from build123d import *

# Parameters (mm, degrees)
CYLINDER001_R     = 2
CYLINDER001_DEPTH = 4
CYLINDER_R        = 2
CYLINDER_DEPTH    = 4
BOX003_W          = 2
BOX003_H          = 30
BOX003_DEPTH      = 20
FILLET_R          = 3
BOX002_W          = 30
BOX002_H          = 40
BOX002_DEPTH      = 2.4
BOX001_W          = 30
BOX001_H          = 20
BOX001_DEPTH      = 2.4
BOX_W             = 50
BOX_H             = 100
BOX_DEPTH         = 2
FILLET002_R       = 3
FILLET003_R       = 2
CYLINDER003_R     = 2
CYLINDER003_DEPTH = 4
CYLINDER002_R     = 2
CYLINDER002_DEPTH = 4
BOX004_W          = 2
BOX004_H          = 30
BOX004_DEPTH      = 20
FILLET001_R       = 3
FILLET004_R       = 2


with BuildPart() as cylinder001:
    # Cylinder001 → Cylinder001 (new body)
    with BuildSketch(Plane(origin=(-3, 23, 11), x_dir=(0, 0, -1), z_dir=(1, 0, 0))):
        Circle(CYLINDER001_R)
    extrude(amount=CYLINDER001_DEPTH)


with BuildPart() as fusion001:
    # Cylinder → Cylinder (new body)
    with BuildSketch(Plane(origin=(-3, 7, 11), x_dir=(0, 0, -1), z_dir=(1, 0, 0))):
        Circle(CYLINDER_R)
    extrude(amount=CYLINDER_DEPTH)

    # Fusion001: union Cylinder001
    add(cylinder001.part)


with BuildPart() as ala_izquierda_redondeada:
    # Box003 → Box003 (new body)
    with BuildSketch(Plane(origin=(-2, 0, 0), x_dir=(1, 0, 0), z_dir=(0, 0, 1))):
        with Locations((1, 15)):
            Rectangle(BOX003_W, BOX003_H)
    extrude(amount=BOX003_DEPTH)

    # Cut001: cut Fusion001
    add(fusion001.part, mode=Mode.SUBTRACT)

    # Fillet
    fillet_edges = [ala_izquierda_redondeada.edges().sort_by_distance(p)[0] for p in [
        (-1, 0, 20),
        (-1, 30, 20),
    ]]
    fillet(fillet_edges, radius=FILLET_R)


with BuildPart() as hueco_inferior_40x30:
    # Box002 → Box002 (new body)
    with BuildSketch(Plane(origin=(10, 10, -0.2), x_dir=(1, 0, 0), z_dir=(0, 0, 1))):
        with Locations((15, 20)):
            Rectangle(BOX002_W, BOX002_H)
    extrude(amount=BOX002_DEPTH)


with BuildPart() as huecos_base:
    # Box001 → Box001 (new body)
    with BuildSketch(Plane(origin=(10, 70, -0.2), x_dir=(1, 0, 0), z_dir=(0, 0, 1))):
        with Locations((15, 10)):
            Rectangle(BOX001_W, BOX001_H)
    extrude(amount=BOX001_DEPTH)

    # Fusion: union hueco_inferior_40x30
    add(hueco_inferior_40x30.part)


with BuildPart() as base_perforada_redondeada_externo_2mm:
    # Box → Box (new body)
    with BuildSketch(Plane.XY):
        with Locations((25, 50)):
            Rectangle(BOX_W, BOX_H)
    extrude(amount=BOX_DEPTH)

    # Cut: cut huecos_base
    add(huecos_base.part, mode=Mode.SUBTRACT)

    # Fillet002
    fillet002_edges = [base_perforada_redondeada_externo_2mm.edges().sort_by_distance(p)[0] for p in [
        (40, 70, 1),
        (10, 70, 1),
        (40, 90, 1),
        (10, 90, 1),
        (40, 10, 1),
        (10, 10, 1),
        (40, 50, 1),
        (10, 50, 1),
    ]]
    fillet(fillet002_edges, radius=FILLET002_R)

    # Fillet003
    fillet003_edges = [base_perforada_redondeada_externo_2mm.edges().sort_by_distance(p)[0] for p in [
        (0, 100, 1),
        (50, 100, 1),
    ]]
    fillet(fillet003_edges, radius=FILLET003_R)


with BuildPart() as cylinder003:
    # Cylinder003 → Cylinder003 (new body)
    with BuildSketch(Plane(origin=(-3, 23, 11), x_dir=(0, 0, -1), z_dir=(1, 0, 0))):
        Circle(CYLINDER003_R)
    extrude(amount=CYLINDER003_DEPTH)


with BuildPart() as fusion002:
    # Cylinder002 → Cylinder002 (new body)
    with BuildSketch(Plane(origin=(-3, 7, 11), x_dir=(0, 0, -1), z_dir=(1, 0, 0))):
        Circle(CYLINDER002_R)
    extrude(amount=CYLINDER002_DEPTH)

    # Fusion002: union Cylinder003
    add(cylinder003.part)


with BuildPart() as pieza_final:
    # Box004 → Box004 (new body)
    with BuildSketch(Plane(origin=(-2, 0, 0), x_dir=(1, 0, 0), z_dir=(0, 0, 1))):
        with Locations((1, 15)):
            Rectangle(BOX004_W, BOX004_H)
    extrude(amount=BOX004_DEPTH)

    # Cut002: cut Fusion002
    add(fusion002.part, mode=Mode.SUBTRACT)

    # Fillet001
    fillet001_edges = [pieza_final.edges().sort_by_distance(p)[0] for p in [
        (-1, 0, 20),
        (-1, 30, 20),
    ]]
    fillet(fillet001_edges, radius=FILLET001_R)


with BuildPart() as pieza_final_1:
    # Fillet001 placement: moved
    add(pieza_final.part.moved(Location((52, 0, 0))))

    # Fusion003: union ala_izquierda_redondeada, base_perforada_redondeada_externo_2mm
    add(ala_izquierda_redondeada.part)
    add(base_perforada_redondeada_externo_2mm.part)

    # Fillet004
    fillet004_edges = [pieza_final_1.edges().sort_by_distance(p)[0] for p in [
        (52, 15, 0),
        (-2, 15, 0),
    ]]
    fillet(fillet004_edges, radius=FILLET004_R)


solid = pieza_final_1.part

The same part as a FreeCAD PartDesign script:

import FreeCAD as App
import Part
import Sketcher

V = App.Vector
Q = App.Units.Quantity


def edges_at(feature, points):
    """Names of the edges that pass closest to the given points."""
    edges = feature.Shape.Edges
    near = lambda p: min(range(len(edges)), key=lambda i: edges[i].distToShape(Part.Vertex(*p))[0])
    return sorted({f"Edge{near(p) + 1}" for p in points})

doc = App.newDocument("Part")
params = doc.addObject("Spreadsheet::Sheet", "Params")
for row, (alias, value) in enumerate([
    ("sketch1_diameter", "4 mm"),
    ("pad1_length", "4 mm"),
    ("sketch2_diameter", "4 mm"),
    ("pad2_length", "4 mm"),
    ("sketch3_width", "2 mm"),
    ("sketch3_height", "30 mm"),
    ("pad3_length", "20 mm"),
    ("fillet_radius", "3 mm"),
    ("sketch4_width", "30 mm"),
    ("sketch4_height", "40 mm"),
    ("pad4_length", "2.4 mm"),
    ("sketch5_width", "30 mm"),
    ("sketch5_height", "20 mm"),
    ("pad5_length", "2.4 mm"),
    ("sketch6_width", "50 mm"),
    ("sketch6_height", "100 mm"),
    ("pad6_length", "2 mm"),
    ("fillet2_radius", "3 mm"),
    ("fillet3_radius", "2 mm"),
    ("sketch7_diameter", "4 mm"),
    ("pad7_length", "4 mm"),
    ("sketch8_diameter", "4 mm"),
    ("pad8_length", "4 mm"),
    ("sketch9_width", "2 mm"),
    ("sketch9_height", "30 mm"),
    ("pad9_length", "20 mm"),
    ("fillet4_radius", "3 mm"),
    ("fillet5_radius", "2 mm"),
], start=1):
    params.set(f"A{row}", alias)
    params.set(f"B{row}", "=" + value)
    params.setAlias(f"B{row}", alias)

body = doc.addObject("PartDesign::Body", "Body")

sketch1 = doc.addObject("Sketcher::SketchObject", "Sketch")
body.addObject(sketch1)
sketch1.AttachmentSupport = (doc.YZ_Plane, [""])
sketch1.MapMode = "FlatFace"
sketch1.AttachmentOffset = App.Placement(V(0, 0, -3), App.Rotation())
sketch1.addGeometry(Part.Circle(V(23, 11, 0), V(0, 0, 1), 2), False)
sketch1.addConstraint([
    Sketcher.Constraint("Diameter", 0, Q("4 mm")),
    Sketcher.Constraint("DistanceX", -1, 1, 0, 3, Q("23 mm")),
    Sketcher.Constraint("DistanceY", -1, 1, 0, 3, Q("11 mm")),
])
sketch1.setExpression("Constraints[0]", "Params.sketch1_diameter")
pad1 = doc.addObject("PartDesign::Pad", "Pad")
body.addObject(pad1)
pad1.Profile = sketch1
pad1.setExpression("Length", "Params.pad1_length")
body2 = doc.addObject("PartDesign::Body", "Body001")
body2.AllowCompound = True

sketch2 = doc.addObject("Sketcher::SketchObject", "Sketch001")
body2.addObject(sketch2)
sketch2.AttachmentSupport = (doc.getObject("YZ_Plane001"), [""])
sketch2.MapMode = "FlatFace"
sketch2.AttachmentOffset = App.Placement(V(0, 0, -3), App.Rotation())
sketch2.addGeometry(Part.Circle(V(7, 11, 0), V(0, 0, 1), 2), False)
sketch2.addConstraint([
    Sketcher.Constraint("Diameter", 0, Q("4 mm")),
    Sketcher.Constraint("DistanceX", -1, 1, 0, 3, Q("7 mm")),
    Sketcher.Constraint("DistanceY", -1, 1, 0, 3, Q("11 mm")),
])
sketch2.setExpression("Constraints[0]", "Params.sketch2_diameter")
pad2 = doc.addObject("PartDesign::Pad", "Pad001")
body2.addObject(pad2)
pad2.Profile = sketch2
pad2.setExpression("Length", "Params.pad2_length")
doc.recompute()

boolean = doc.addObject("PartDesign::Boolean", "Boolean")
body2.addObject(boolean)
boolean.Type = "Fuse"
boolean.addObjects([body])
body3 = doc.addObject("PartDesign::Body", "Body002")

sketch3 = doc.addObject("Sketcher::SketchObject", "Sketch002")
body3.addObject(sketch3)
sketch3.AttachmentSupport = (doc.getObject("XY_Plane002"), [""])
sketch3.MapMode = "FlatFace"
sketch3.addGeometry([
    Part.LineSegment(V(-2, 30, 0), V(-2, 0, 0)),
    Part.LineSegment(V(-2, 0, 0), V(0, 0, 0)),
    Part.LineSegment(V(0, 0, 0), V(0, 30, 0)),
    Part.LineSegment(V(0, 30, 0), V(-2, 30, 0)),
], False)
sketch3.addConstraint([
    Sketcher.Constraint("Coincident", 0, 2, 1, 1),
    Sketcher.Constraint("Coincident", 1, 2, 2, 1),
    Sketcher.Constraint("Coincident", 2, 2, 3, 1),
    Sketcher.Constraint("Coincident", 3, 2, 0, 1),
    Sketcher.Constraint("Vertical", 0),
    Sketcher.Constraint("Horizontal", 1),
    Sketcher.Constraint("Vertical", 2),
    Sketcher.Constraint("Horizontal", 3),
    Sketcher.Constraint("Coincident", 1, 2, -1, 1),
    Sketcher.Constraint("DistanceX", 1, 1, 1, 2, Q("2 mm")),
    Sketcher.Constraint("DistanceY", 0, 2, 0, 1, Q("30 mm")),
])
sketch3.setExpression("Constraints[9]", "Params.sketch3_width")
sketch3.setExpression("Constraints[10]", "Params.sketch3_height")
pad3 = doc.addObject("PartDesign::Pad", "Pad002")
body3.addObject(pad3)
pad3.Profile = sketch3
pad3.setExpression("Length", "Params.pad3_length")
doc.recompute()

boolean2 = doc.addObject("PartDesign::Boolean", "Boolean001")
body3.addObject(boolean2)
boolean2.Type = "Cut"
boolean2.addObjects([body2])
doc.recompute()

fillet = doc.addObject("PartDesign::Fillet", "Fillet")
body3.addObject(fillet)
fillet.Base = (boolean2, edges_at(boolean2, [(-1, 0, 20), (-1, 30, 20)]))
fillet.setExpression("Radius", "Params.fillet_radius")
body4 = doc.addObject("PartDesign::Body", "Body003")

sketch4 = doc.addObject("Sketcher::SketchObject", "Sketch003")
body4.addObject(sketch4)
sketch4.AttachmentSupport = (doc.getObject("XY_Plane003"), [""])
sketch4.MapMode = "FlatFace"
sketch4.AttachmentOffset = App.Placement(V(0, 0, -0.2), App.Rotation())
sketch4.addGeometry([
    Part.LineSegment(V(10, 50, 0), V(10, 10, 0)),
    Part.LineSegment(V(10, 10, 0), V(40, 10, 0)),
    Part.LineSegment(V(40, 10, 0), V(40, 50, 0)),
    Part.LineSegment(V(40, 50, 0), V(10, 50, 0)),
], False)
sketch4.addConstraint([
    Sketcher.Constraint("Coincident", 0, 2, 1, 1),
    Sketcher.Constraint("Coincident", 1, 2, 2, 1),
    Sketcher.Constraint("Coincident", 2, 2, 3, 1),
    Sketcher.Constraint("Coincident", 3, 2, 0, 1),
    Sketcher.Constraint("Vertical", 0),
    Sketcher.Constraint("Horizontal", 1),
    Sketcher.Constraint("Vertical", 2),
    Sketcher.Constraint("Horizontal", 3),
    Sketcher.Constraint("DistanceX", 1, 1, 1, 2, Q("30 mm")),
    Sketcher.Constraint("DistanceY", 0, 2, 0, 1, Q("40 mm")),
    Sketcher.Constraint("DistanceX", -1, 1, 0, 2, Q("10 mm")),
    Sketcher.Constraint("DistanceY", -1, 1, 0, 2, Q("10 mm")),
])
sketch4.setExpression("Constraints[8]", "Params.sketch4_width")
sketch4.setExpression("Constraints[9]", "Params.sketch4_height")
pad4 = doc.addObject("PartDesign::Pad", "Pad003")
body4.addObject(pad4)
pad4.Profile = sketch4
pad4.setExpression("Length", "Params.pad4_length")
body5 = doc.addObject("PartDesign::Body", "Body004")
body5.AllowCompound = True

sketch5 = doc.addObject("Sketcher::SketchObject", "Sketch004")
body5.addObject(sketch5)
sketch5.AttachmentSupport = (doc.getObject("XY_Plane004"), [""])
sketch5.MapMode = "FlatFace"
sketch5.AttachmentOffset = App.Placement(V(0, 0, -0.2), App.Rotation())
sketch5.addGeometry([
    Part.LineSegment(V(10, 90, 0), V(10, 70, 0)),
    Part.LineSegment(V(10, 70, 0), V(40, 70, 0)),
    Part.LineSegment(V(40, 70, 0), V(40, 90, 0)),
    Part.LineSegment(V(40, 90, 0), V(10, 90, 0)),
], False)
sketch5.addConstraint([
    Sketcher.Constraint("Coincident", 0, 2, 1, 1),
    Sketcher.Constraint("Coincident", 1, 2, 2, 1),
    Sketcher.Constraint("Coincident", 2, 2, 3, 1),
    Sketcher.Constraint("Coincident", 3, 2, 0, 1),
    Sketcher.Constraint("Vertical", 0),
    Sketcher.Constraint("Horizontal", 1),
    Sketcher.Constraint("Vertical", 2),
    Sketcher.Constraint("Horizontal", 3),
    Sketcher.Constraint("DistanceX", 1, 1, 1, 2, Q("30 mm")),
    Sketcher.Constraint("DistanceY", 0, 2, 0, 1, Q("20 mm")),
    Sketcher.Constraint("DistanceX", -1, 1, 0, 2, Q("10 mm")),
    Sketcher.Constraint("DistanceY", -1, 1, 0, 2, Q("70 mm")),
])
sketch5.setExpression("Constraints[8]", "Params.sketch5_width")
sketch5.setExpression("Constraints[9]", "Params.sketch5_height")
pad5 = doc.addObject("PartDesign::Pad", "Pad004")
body5.addObject(pad5)
pad5.Profile = sketch5
pad5.setExpression("Length", "Params.pad5_length")
doc.recompute()

boolean3 = doc.addObject("PartDesign::Boolean", "Boolean002")
body5.addObject(boolean3)
boolean3.Type = "Fuse"
boolean3.addObjects([body4])
body6 = doc.addObject("PartDesign::Body", "Body005")

sketch6 = doc.addObject("Sketcher::SketchObject", "Sketch005")
body6.addObject(sketch6)
sketch6.AttachmentSupport = (doc.getObject("XY_Plane005"), [""])
sketch6.MapMode = "FlatFace"
sketch6.addGeometry([
    Part.LineSegment(V(0, 100, 0), V(0, 0, 0)),
    Part.LineSegment(V(0, 0, 0), V(50, 0, 0)),
    Part.LineSegment(V(50, 0, 0), V(50, 100, 0)),
    Part.LineSegment(V(50, 100, 0), V(0, 100, 0)),
], False)
sketch6.addConstraint([
    Sketcher.Constraint("Coincident", 0, 2, 1, 1),
    Sketcher.Constraint("Coincident", 1, 2, 2, 1),
    Sketcher.Constraint("Coincident", 2, 2, 3, 1),
    Sketcher.Constraint("Coincident", 3, 2, 0, 1),
    Sketcher.Constraint("Vertical", 0),
    Sketcher.Constraint("Horizontal", 1),
    Sketcher.Constraint("Vertical", 2),
    Sketcher.Constraint("Horizontal", 3),
    Sketcher.Constraint("Coincident", 0, 2, -1, 1),
    Sketcher.Constraint("DistanceX", 1, 1, 1, 2, Q("50 mm")),
    Sketcher.Constraint("DistanceY", 0, 2, 0, 1, Q("100 mm")),
])
sketch6.setExpression("Constraints[9]", "Params.sketch6_width")
sketch6.setExpression("Constraints[10]", "Params.sketch6_height")
pad6 = doc.addObject("PartDesign::Pad", "Pad005")
body6.addObject(pad6)
pad6.Profile = sketch6
pad6.setExpression("Length", "Params.pad6_length")
doc.recompute()

boolean4 = doc.addObject("PartDesign::Boolean", "Boolean003")
body6.addObject(boolean4)
boolean4.Type = "Cut"
boolean4.addObjects([body5])
doc.recompute()

fillet2 = doc.addObject("PartDesign::Fillet", "Fillet001")
body6.addObject(fillet2)
fillet2.Base = (boolean4, edges_at(boolean4, [
    (40, 70, 1),
    (10, 70, 1),
    (40, 90, 1),
    (10, 90, 1),
    (40, 10, 1),
    (10, 10, 1),
    (40, 50, 1),
    (10, 50, 1),
]))
fillet2.setExpression("Radius", "Params.fillet2_radius")
doc.recompute()

fillet3 = doc.addObject("PartDesign::Fillet", "Fillet002")
body6.addObject(fillet3)
fillet3.Base = (fillet2, edges_at(fillet2, [(0, 100, 1), (50, 100, 1)]))
fillet3.setExpression("Radius", "Params.fillet3_radius")
body7 = doc.addObject("PartDesign::Body", "Body006")

sketch7 = doc.addObject("Sketcher::SketchObject", "Sketch006")
body7.addObject(sketch7)
sketch7.AttachmentSupport = (doc.getObject("YZ_Plane006"), [""])
sketch7.MapMode = "FlatFace"
sketch7.AttachmentOffset = App.Placement(V(0, 0, -3), App.Rotation())
sketch7.addGeometry(Part.Circle(V(23, 11, 0), V(0, 0, 1), 2), False)
sketch7.addConstraint([
    Sketcher.Constraint("Diameter", 0, Q("4 mm")),
    Sketcher.Constraint("DistanceX", -1, 1, 0, 3, Q("23 mm")),
    Sketcher.Constraint("DistanceY", -1, 1, 0, 3, Q("11 mm")),
])
sketch7.setExpression("Constraints[0]", "Params.sketch7_diameter")
pad7 = doc.addObject("PartDesign::Pad", "Pad006")
body7.addObject(pad7)
pad7.Profile = sketch7
pad7.setExpression("Length", "Params.pad7_length")
body8 = doc.addObject("PartDesign::Body", "Body007")
body8.AllowCompound = True

sketch8 = doc.addObject("Sketcher::SketchObject", "Sketch007")
body8.addObject(sketch8)
sketch8.AttachmentSupport = (doc.getObject("YZ_Plane007"), [""])
sketch8.MapMode = "FlatFace"
sketch8.AttachmentOffset = App.Placement(V(0, 0, -3), App.Rotation())
sketch8.addGeometry(Part.Circle(V(7, 11, 0), V(0, 0, 1), 2), False)
sketch8.addConstraint([
    Sketcher.Constraint("Diameter", 0, Q("4 mm")),
    Sketcher.Constraint("DistanceX", -1, 1, 0, 3, Q("7 mm")),
    Sketcher.Constraint("DistanceY", -1, 1, 0, 3, Q("11 mm")),
])
sketch8.setExpression("Constraints[0]", "Params.sketch8_diameter")
pad8 = doc.addObject("PartDesign::Pad", "Pad007")
body8.addObject(pad8)
pad8.Profile = sketch8
pad8.setExpression("Length", "Params.pad8_length")
doc.recompute()

boolean5 = doc.addObject("PartDesign::Boolean", "Boolean004")
body8.addObject(boolean5)
boolean5.Type = "Fuse"
boolean5.addObjects([body7])
body9 = doc.addObject("PartDesign::Body", "Body008")

sketch9 = doc.addObject("Sketcher::SketchObject", "Sketch008")
body9.addObject(sketch9)
sketch9.AttachmentSupport = (doc.getObject("XY_Plane008"), [""])
sketch9.MapMode = "FlatFace"
sketch9.addGeometry([
    Part.LineSegment(V(-2, 30, 0), V(-2, 0, 0)),
    Part.LineSegment(V(-2, 0, 0), V(0, 0, 0)),
    Part.LineSegment(V(0, 0, 0), V(0, 30, 0)),
    Part.LineSegment(V(0, 30, 0), V(-2, 30, 0)),
], False)
sketch9.addConstraint([
    Sketcher.Constraint("Coincident", 0, 2, 1, 1),
    Sketcher.Constraint("Coincident", 1, 2, 2, 1),
    Sketcher.Constraint("Coincident", 2, 2, 3, 1),
    Sketcher.Constraint("Coincident", 3, 2, 0, 1),
    Sketcher.Constraint("Vertical", 0),
    Sketcher.Constraint("Horizontal", 1),
    Sketcher.Constraint("Vertical", 2),
    Sketcher.Constraint("Horizontal", 3),
    Sketcher.Constraint("Coincident", 1, 2, -1, 1),
    Sketcher.Constraint("DistanceX", 1, 1, 1, 2, Q("2 mm")),
    Sketcher.Constraint("DistanceY", 0, 2, 0, 1, Q("30 mm")),
])
sketch9.setExpression("Constraints[9]", "Params.sketch9_width")
sketch9.setExpression("Constraints[10]", "Params.sketch9_height")
pad9 = doc.addObject("PartDesign::Pad", "Pad008")
body9.addObject(pad9)
pad9.Profile = sketch9
pad9.setExpression("Length", "Params.pad9_length")
doc.recompute()

boolean6 = doc.addObject("PartDesign::Boolean", "Boolean005")
body9.addObject(boolean6)
boolean6.Type = "Cut"
boolean6.addObjects([body8])
doc.recompute()

fillet4 = doc.addObject("PartDesign::Fillet", "Fillet003")
body9.addObject(fillet4)
fillet4.Base = (boolean6, edges_at(boolean6, [(-1, 0, 20), (-1, 30, 20)]))
fillet4.setExpression("Radius", "Params.fillet4_radius")
body10 = doc.addObject("PartDesign::Body", "Body009")
body10.AllowCompound = True
doc.recompute()

body9.Placement = App.Placement(V(52, 0, 0), App.Rotation(V(0, 0, 1), 0))
boolean7 = doc.addObject("PartDesign::Boolean", "Boolean006")
body10.addObject(boolean7)
boolean7.Type = "Fuse"
boolean7.addObjects([body9])
doc.recompute()

boolean8 = doc.addObject("PartDesign::Boolean", "Boolean007")
body10.addObject(boolean8)
boolean8.Type = "Fuse"
boolean8.addObjects([body3])
doc.recompute()

boolean9 = doc.addObject("PartDesign::Boolean", "Boolean008")
body10.addObject(boolean9)
boolean9.Type = "Fuse"
boolean9.addObjects([body6])
doc.recompute()

fillet5 = doc.addObject("PartDesign::Fillet", "Fillet004")
body10.addObject(fillet5)
fillet5.Base = (boolean9, edges_at(boolean9, [(52, 15, 0), (-2, 15, 0)]))
fillet5.setExpression("Radius", "Params.fillet5_radius")

doc.recompute()
